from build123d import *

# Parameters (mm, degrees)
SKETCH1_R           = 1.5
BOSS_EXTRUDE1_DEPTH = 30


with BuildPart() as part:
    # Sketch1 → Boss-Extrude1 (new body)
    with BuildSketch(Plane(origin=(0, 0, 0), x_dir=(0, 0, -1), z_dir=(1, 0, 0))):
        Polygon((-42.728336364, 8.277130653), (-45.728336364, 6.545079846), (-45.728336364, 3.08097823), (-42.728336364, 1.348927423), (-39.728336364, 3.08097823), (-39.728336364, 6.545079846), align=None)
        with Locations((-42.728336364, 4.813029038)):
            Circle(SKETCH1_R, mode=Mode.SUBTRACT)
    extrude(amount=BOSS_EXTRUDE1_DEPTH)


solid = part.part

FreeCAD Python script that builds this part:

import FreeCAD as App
import Part
import Sketcher

V = App.Vector
Q = App.Units.Quantity

doc = App.newDocument("Part")
body = doc.addObject("PartDesign::Body", "Body")

# Sketch on YZ plane
sketch1 = body.newObject("Sketcher::SketchObject", "Sketch")
sketch1.AttachmentSupport = (doc.getObject("YZ_Plane"), [""])
sketch1.MapMode = "FlatFace"
sketch1.addGeometry([
    Part.LineSegment(V(8.3, 42.7, 0), V(6.5, 45.7, 0)),  # 0
    Part.LineSegment(V(6.5, 45.7, 0), V(3.1, 45.7, 0)),  # 1
    Part.LineSegment(V(3.1, 45.7, 0), V(1.3, 42.7, 0)),  # 2
    Part.LineSegment(V(1.3, 42.7, 0), V(3.1, 39.7, 0)),  # 3
    Part.LineSegment(V(3.1, 39.7, 0), V(6.5, 39.7, 0)),  # 4
    Part.LineSegment(V(6.5, 39.7, 0), V(8.3, 42.7, 0)),  # 5
    Part.Circle(V(4.8, 42.7, 0), V(0, 0, 1), 1.5),  # 6
], False)
sketch1.addConstraint([
    Sketcher.Constraint("Coincident", 0, 2, 1, 1),
    Sketcher.Constraint("Coincident", 1, 2, 2, 1),
    Sketcher.Constraint("Coincident", 2, 2, 3, 1),
    Sketcher.Constraint("Coincident", 3, 2, 4, 1),
    Sketcher.Constraint("Coincident", 4, 2, 5, 1),
    Sketcher.Constraint("Coincident", 5, 2, 0, 1),
    Sketcher.Constraint("Horizontal", 1),
    Sketcher.Constraint("Horizontal", 4),
    Sketcher.Constraint("Parallel", 0, 3),
    Sketcher.Constraint("Parallel", 2, 5),
    Sketcher.Constraint("Horizontal", 6, 3, 2, 2),
    Sketcher.Constraint("Horizontal", 2, 2, 5, 2),
    Sketcher.Constraint("Vertical", 1, 2, 3, 2),
    Sketcher.Constraint("Vertical", 0, 2, 4, 2),
    Sketcher.Constraint("Diameter", 6, Q("3 mm")),
    Sketcher.Constraint("Angle", 0, Q("120 deg")),
    Sketcher.Constraint("DistanceY", 6, 3, 0, 2, Q("3 mm")),
    Sketcher.Constraint("DistanceX", 1, 2, 1, 1, Q("3.464102 mm")),
    Sketcher.Constraint("DistanceX", 2, 2, 6, 3, Q("3.464102 mm")),
    Sketcher.Constraint("DistanceX", -1, 1, 6, 3, Q("4.813029 mm")),
    Sketcher.Constraint("DistanceY", -1, 1, 6, 3, Q("42.728336 mm")),
])
pad1 = body.newObject("PartDesign::Pad", "Pad")
pad1.Profile = sketch1
pad1.Length = 30

doc.recompute()
